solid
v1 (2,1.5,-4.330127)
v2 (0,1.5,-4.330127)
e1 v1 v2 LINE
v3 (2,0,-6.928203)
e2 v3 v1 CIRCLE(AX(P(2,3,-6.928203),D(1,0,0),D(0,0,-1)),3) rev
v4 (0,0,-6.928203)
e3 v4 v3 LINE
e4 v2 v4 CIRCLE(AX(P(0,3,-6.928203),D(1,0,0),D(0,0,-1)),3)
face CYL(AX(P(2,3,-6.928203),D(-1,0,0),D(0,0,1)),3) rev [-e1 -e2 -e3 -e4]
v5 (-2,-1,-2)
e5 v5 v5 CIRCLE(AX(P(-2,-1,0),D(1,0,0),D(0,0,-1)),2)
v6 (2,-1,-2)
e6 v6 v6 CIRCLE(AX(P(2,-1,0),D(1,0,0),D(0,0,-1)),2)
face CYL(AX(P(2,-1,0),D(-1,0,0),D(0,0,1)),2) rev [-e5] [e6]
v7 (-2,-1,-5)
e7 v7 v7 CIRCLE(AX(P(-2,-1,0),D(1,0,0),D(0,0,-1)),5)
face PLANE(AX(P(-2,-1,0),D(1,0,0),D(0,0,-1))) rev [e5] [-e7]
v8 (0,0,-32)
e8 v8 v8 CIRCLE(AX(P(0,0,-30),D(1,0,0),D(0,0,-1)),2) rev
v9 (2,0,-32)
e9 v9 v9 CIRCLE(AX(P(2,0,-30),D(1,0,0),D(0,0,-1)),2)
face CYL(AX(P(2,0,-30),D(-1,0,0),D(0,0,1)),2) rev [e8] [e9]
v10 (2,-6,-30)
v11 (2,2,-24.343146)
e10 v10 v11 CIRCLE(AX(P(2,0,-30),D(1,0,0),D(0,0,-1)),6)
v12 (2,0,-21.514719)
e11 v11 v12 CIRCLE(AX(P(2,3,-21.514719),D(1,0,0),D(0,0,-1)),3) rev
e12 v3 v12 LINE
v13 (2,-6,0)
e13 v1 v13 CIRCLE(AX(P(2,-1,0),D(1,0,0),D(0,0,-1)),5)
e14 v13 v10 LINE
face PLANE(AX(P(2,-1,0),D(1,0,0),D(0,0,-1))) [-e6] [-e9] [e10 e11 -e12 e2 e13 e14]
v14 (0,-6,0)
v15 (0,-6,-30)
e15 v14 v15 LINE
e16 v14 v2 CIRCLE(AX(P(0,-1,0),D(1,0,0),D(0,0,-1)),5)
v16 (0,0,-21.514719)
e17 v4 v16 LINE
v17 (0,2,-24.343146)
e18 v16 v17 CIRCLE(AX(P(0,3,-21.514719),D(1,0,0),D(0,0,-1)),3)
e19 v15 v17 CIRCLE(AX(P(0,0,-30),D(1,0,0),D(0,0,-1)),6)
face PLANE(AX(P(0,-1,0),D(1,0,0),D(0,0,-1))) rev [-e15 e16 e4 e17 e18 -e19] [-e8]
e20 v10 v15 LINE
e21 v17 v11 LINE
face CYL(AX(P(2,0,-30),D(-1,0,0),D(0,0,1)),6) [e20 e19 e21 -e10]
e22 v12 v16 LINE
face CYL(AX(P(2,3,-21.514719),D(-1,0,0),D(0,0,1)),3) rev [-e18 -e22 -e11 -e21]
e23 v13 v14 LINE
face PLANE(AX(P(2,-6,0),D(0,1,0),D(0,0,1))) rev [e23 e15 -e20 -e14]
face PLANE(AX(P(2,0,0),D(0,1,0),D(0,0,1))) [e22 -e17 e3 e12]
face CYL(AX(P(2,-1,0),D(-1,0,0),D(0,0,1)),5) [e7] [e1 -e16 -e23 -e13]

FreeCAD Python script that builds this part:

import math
import FreeCAD as App
import Part
import Sketcher
from FreeCAD import Vector
Q = App.Units.Quantity


def edges_at(feature, points):
    """Names of the edges that pass closest to the given points."""
    edges = feature.Shape.Edges
    near = lambda p: min(range(len(edges)), key=lambda i: edges[i].distToShape(Part.Vertex(*p))[0])
    return sorted({f"Edge{near(p) + 1}" for p in points})

doc = App.newDocument("Part")
body = doc.addObject("PartDesign::Body", "Body")

# Sketch on YZ plane
sketch1 = body.newObject("Sketcher::SketchObject", "Sketch")
sketch1.AttachmentSupport = (doc.getObject("YZ_Plane"), [""])
sketch1.MapMode = "FlatFace"
sketch1.addGeometry(Part.ArcOfCircle(Part.Circle(Vector(-1, 0, 0), Vector(0, 0, 1), 5), math.radians(-78.463041), math.radians(180)), False)
sketch1.addGeometry(Part.LineSegment(Vector(-6, 0, 0), Vector(-6, -30, 0)), False)
sketch1.addGeometry(Part.ArcOfCircle(Part.Circle(Vector(0, -30, 0), Vector(0, 0, 1), 6), math.radians(180), math.radians(450)), False)
sketch1.addGeometry(Part.LineSegment(Vector(0, -24, 0), Vector(0, -4.898979, 0)), False)
sketch1.addConstraint(Sketcher.Constraint("Tangent", 0, 2, 1, 1))
sketch1.addConstraint(Sketcher.Constraint("Tangent", 1, 2, 2, 1))
sketch1.addConstraint(Sketcher.Constraint("Coincident", 2, 2, 3, 1))
sketch1.addConstraint(Sketcher.Constraint("Coincident", 3, 2, 0, 1))
sketch1.addConstraint(Sketcher.Constraint("Vertical", 1))
sketch1.addConstraint(Sketcher.Constraint("Vertical", 3))
sketch1.addConstraint(Sketcher.Constraint("PointOnObject", 0, 3, -1))
sketch1.addConstraint(Sketcher.Constraint("PointOnObject", 2, 3, -2))
sketch1.addConstraint(Sketcher.Constraint("PointOnObject", 2, 2, -2))
sketch1.addConstraint(Sketcher.Constraint("Radius", 0, Q("5 mm")))
sketch1.addConstraint(Sketcher.Constraint("Radius", 2, Q("6 mm")))
sketch1.addConstraint(Sketcher.Constraint("DistanceY", 1, 2, 1, 1, Q("30 mm")))
pad1 = body.newObject("PartDesign::Pad", "Pad")
pad1.Profile = sketch1
pad1.Length = 2

# Sketch on YZ plane
sketch2 = body.newObject("Sketcher::SketchObject", "Sketch001")
sketch2.AttachmentSupport = (doc.getObject("YZ_Plane"), [""])
sketch2.MapMode = "FlatFace"
sketch2.AttachmentOffset = App.Placement(Vector(0, 0, -2), App.Rotation())
sketch2.addGeometry(Part.Circle(Vector(-1, 0, 0), Vector(0, 0, 1), 5), False)
sketch2.addConstraint(Sketcher.Constraint("PointOnObject", 0, 3, -1))
sketch2.addConstraint(Sketcher.Constraint("Diameter", 0, Q("10 mm")))
sketch2.addConstraint(Sketcher.Constraint("DistanceX", 0, 3, -1, 1, Q("1 mm")))
pad2 = body.newObject("PartDesign::Pad", "Pad001")
pad2.Profile = sketch2
pad2.Length = 2

# Sketch on YZ plane
sketch3 = body.newObject("Sketcher::SketchObject", "Sketch002")
sketch3.AttachmentSupport = (doc.getObject("YZ_Plane"), [""])
sketch3.MapMode = "FlatFace"
sketch3.addGeometry(Part.Circle(Vector(-1, 0, 0), Vector(0, 0, 1), 2), False)
sketch3.addGeometry(Part.Circle(Vector(0, -30, 0), Vector(0, 0, 1), 2), False)
sketch3.addConstraint(Sketcher.Constraint("Equal", 0, 1))
sketch3.addConstraint(Sketcher.Constraint("PointOnObject", 0, 3, -1))
sketch3.addConstraint(Sketcher.Constraint("PointOnObject", 1, 3, -2))
sketch3.addConstraint(Sketcher.Constraint("Diameter", 0, Q("4 mm")))
sketch3.addConstraint(Sketcher.Constraint("DistanceX", 0, 3, -1, 1, Q("1 mm")))
sketch3.addConstraint(Sketcher.Constraint("DistanceY", 1, 3, -1, 1, Q("30 mm")))
pocket1 = body.newObject("PartDesign::Pocket", "Pocket")
pocket1.Profile = sketch3
pocket1.Type = "ThroughAll"
pocket1.Midplane = True
doc.recompute()

fillet = body.newObject("PartDesign::Fillet", "Fillet")
fillet.Base = (pocket1, edges_at(pocket1, [(1, 0, -24), (1, 0, -4.899)]))
fillet.Radius = 3

doc.recompute()
